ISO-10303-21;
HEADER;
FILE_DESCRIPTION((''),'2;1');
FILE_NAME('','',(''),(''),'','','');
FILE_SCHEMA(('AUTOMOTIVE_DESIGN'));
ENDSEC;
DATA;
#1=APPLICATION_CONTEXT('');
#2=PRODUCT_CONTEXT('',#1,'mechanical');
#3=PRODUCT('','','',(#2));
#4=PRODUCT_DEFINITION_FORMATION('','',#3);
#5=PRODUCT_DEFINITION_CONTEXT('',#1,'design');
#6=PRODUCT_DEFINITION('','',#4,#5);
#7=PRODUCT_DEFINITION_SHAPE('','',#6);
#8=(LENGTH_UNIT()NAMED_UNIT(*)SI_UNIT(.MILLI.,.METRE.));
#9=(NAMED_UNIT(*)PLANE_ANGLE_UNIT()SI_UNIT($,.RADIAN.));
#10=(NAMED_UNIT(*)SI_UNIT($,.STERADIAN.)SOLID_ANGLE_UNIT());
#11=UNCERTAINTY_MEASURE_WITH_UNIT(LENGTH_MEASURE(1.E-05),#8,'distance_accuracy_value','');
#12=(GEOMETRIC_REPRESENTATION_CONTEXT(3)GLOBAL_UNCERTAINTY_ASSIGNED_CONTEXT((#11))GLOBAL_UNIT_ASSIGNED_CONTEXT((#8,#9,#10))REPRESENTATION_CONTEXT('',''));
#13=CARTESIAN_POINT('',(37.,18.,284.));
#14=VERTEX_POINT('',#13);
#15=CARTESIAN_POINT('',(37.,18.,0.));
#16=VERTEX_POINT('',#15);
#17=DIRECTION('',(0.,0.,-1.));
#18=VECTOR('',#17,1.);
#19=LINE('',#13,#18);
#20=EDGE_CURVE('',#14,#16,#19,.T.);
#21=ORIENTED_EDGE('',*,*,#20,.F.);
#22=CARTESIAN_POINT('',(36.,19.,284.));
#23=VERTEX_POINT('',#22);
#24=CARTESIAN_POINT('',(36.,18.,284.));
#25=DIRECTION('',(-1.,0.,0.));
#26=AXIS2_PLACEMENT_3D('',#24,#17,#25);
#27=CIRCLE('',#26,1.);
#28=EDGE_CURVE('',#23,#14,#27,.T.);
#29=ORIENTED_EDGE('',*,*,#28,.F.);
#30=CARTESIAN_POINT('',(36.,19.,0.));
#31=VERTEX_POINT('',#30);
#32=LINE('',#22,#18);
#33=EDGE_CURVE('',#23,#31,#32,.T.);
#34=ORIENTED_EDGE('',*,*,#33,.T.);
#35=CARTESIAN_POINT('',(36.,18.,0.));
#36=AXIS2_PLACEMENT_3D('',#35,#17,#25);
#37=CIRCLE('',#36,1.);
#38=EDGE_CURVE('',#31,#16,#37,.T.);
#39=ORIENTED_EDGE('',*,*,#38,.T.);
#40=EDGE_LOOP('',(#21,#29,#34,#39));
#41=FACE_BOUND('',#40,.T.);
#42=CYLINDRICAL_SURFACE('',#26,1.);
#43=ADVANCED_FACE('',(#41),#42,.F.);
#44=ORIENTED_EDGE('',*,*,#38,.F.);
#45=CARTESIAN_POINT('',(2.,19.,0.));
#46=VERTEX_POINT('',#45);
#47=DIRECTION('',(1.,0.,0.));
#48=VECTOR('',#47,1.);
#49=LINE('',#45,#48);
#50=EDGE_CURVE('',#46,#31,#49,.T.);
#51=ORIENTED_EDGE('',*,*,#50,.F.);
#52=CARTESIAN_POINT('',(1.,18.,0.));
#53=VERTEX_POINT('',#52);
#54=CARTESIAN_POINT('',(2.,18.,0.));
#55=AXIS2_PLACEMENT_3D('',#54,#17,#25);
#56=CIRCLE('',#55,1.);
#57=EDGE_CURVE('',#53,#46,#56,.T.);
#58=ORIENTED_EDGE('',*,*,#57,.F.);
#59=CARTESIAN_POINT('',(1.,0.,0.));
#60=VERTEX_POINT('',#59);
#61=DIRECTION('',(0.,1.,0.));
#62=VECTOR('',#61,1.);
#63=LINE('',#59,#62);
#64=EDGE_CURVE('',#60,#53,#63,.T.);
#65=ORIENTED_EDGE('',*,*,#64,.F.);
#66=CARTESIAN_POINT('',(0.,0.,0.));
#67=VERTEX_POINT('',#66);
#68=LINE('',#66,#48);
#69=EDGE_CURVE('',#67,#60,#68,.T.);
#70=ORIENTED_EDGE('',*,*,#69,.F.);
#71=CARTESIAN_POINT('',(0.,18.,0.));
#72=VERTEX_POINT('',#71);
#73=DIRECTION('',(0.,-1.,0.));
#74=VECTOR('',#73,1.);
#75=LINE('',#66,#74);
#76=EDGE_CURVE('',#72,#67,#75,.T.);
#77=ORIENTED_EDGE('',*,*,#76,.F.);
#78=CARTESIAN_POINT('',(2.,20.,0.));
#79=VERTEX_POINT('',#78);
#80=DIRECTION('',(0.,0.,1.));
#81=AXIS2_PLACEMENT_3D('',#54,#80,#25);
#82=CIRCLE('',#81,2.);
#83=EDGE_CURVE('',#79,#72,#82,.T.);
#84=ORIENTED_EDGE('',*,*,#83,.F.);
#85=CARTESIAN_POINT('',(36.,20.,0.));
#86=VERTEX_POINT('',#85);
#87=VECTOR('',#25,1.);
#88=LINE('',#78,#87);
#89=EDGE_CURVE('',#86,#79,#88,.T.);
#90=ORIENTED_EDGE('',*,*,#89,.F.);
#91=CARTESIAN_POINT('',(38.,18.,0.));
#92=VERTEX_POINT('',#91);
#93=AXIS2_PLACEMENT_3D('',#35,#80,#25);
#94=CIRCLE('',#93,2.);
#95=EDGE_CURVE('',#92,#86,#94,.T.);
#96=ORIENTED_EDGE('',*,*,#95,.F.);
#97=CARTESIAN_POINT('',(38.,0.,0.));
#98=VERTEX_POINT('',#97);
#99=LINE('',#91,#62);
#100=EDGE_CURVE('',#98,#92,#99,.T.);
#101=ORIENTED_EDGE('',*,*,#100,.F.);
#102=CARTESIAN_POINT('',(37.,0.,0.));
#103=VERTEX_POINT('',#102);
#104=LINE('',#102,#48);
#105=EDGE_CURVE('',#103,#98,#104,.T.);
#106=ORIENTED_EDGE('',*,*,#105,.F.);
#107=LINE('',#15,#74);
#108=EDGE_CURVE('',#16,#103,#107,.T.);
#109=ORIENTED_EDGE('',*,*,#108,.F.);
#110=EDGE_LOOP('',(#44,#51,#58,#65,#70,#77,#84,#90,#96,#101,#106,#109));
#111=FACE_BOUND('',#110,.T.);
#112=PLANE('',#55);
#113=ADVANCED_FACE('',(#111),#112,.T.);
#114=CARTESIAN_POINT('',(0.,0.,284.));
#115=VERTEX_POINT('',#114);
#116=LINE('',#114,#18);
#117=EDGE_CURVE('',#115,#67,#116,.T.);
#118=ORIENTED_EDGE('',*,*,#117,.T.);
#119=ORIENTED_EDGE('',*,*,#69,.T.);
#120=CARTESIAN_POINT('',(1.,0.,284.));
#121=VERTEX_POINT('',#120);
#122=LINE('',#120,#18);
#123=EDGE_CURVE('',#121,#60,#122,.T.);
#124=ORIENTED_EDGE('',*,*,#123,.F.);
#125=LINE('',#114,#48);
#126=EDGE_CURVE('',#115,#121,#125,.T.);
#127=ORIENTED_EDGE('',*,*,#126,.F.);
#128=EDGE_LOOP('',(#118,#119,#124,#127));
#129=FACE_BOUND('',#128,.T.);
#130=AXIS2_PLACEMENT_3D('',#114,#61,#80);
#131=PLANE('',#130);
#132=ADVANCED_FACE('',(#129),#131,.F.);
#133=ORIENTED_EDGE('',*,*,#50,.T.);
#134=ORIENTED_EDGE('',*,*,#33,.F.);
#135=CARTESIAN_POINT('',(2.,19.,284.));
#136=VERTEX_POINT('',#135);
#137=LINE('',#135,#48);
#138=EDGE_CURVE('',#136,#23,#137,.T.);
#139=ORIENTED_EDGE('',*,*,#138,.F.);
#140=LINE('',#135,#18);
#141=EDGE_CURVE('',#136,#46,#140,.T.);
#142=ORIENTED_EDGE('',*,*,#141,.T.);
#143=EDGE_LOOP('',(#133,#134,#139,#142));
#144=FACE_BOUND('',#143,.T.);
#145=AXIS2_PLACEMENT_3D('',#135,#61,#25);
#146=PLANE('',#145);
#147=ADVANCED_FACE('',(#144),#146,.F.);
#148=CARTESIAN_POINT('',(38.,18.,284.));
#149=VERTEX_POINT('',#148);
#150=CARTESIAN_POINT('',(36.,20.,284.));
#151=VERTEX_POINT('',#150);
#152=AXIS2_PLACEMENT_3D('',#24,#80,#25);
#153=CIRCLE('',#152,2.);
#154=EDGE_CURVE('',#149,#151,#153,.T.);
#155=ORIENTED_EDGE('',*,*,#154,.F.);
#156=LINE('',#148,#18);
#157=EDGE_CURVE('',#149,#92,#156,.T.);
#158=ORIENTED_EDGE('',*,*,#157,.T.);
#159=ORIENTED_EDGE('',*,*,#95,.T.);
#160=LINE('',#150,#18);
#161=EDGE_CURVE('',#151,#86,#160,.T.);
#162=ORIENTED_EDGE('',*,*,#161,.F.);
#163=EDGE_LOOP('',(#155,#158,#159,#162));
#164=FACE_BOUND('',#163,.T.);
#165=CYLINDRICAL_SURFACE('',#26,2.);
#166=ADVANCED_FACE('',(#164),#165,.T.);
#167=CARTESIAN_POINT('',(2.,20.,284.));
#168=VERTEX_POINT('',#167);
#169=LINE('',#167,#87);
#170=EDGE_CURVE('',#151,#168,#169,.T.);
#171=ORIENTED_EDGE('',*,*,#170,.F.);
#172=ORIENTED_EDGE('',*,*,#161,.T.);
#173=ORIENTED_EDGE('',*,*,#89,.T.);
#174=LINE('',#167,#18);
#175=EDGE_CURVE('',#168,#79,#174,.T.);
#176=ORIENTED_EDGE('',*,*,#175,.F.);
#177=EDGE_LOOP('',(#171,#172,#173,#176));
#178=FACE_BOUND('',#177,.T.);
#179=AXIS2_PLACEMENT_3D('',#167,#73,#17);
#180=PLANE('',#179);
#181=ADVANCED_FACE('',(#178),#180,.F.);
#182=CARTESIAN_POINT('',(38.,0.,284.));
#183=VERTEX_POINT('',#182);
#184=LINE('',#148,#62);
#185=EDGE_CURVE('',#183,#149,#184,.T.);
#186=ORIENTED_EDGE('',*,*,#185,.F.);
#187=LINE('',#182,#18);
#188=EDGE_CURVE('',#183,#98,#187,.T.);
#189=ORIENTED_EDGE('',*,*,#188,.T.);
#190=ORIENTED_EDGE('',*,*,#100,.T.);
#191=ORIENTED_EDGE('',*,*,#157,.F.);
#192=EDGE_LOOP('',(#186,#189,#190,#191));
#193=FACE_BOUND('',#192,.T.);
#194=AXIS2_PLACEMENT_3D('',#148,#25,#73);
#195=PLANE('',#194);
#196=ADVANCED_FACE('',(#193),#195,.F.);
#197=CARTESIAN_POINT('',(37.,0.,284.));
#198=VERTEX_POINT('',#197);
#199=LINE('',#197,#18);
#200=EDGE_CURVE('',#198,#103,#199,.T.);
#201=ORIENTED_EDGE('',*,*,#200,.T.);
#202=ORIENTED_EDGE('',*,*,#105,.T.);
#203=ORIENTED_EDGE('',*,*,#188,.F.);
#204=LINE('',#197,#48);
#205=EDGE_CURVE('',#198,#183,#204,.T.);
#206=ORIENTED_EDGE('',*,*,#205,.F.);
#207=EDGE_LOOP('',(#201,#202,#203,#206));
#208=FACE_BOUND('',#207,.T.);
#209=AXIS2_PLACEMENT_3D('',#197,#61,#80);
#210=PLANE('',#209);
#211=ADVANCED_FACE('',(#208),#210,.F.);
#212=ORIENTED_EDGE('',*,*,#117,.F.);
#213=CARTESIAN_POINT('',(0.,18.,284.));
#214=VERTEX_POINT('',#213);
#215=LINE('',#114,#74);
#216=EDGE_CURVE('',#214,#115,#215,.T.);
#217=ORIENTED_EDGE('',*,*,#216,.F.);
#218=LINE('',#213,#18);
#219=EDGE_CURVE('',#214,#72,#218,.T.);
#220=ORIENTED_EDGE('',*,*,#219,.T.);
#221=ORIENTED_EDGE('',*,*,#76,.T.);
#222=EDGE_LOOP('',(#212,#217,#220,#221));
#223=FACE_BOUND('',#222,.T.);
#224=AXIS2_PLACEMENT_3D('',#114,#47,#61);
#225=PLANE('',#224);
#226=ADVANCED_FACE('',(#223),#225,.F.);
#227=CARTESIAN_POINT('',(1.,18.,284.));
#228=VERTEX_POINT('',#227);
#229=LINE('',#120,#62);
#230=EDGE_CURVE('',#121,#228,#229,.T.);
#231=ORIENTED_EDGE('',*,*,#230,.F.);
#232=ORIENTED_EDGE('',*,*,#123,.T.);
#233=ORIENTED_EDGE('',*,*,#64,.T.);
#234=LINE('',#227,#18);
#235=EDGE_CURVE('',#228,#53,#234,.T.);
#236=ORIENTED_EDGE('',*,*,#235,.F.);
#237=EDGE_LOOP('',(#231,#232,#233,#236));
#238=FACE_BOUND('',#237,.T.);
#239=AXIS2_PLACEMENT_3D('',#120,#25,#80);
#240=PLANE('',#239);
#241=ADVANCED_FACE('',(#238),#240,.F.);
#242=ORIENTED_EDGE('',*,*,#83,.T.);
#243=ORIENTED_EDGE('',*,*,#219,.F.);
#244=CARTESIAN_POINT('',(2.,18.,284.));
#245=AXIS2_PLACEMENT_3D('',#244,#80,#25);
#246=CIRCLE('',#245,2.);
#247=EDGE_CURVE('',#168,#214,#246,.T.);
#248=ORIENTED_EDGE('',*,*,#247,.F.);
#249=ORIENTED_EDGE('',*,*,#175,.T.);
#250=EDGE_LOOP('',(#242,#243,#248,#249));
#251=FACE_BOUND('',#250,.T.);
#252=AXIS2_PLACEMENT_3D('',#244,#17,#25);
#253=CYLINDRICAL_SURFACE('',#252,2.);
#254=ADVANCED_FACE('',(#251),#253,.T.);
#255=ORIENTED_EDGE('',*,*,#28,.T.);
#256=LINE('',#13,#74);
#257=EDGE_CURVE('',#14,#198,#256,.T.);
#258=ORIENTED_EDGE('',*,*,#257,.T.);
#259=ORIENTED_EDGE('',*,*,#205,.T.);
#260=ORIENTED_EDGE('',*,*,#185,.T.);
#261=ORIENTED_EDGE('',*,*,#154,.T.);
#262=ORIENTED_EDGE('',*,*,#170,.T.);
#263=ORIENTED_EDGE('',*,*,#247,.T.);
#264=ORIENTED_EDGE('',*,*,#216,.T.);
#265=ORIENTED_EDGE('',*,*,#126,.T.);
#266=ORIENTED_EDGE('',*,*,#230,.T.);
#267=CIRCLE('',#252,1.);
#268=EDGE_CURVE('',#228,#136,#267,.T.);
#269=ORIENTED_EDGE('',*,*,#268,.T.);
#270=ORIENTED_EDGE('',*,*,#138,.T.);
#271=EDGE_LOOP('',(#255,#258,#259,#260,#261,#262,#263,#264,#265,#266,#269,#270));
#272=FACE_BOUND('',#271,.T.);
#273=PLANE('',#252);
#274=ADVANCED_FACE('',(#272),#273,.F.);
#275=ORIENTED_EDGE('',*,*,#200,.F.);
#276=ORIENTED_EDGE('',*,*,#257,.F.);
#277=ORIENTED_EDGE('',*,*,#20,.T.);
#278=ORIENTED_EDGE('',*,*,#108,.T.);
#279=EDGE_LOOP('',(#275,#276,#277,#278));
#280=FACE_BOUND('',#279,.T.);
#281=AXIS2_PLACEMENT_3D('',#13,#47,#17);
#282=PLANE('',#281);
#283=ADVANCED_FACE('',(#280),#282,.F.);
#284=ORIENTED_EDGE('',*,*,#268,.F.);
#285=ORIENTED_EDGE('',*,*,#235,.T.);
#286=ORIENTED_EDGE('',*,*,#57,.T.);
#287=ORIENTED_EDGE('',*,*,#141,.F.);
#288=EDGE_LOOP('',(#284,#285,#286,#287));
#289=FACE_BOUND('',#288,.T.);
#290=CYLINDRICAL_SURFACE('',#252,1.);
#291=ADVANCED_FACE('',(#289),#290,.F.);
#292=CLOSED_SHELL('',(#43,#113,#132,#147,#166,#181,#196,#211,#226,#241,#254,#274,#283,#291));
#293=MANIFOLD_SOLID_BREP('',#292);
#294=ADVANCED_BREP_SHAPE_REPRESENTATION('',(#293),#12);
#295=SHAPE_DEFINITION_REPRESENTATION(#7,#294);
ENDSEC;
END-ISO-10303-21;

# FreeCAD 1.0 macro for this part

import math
import FreeCAD as App
import Part
import Sketcher
Q = App.Units.Quantity

doc = App.newDocument("Part")
body = doc.addObject("PartDesign::Body", "Body")

# Sketch on XY plane
sketch1 = body.newObject("Sketcher::SketchObject", "Sketch")
sketch1.AttachmentSupport = (doc.getObject("XY_Plane"), [""])
sketch1.MapMode = "FlatFace"
sketch1.addGeometry(Part.LineSegment(App.Vector(0, 18, 0), App.Vector(0, 0, 0)), False)
sketch1.addGeometry(Part.LineSegment(App.Vector(0, 0, 0), App.Vector(1, 0, 0)), False)
sketch1.addGeometry(Part.LineSegment(App.Vector(1, 0, 0), App.Vector(1, 18, 0)), False)
sketch1.addGeometry(Part.ArcOfCircle(Part.Circle(App.Vector(2, 18, 0), App.Vector(0, 0, 1), 1), math.radians(90), math.radians(180)), False)
sketch1.addGeometry(Part.LineSegment(App.Vector(2, 19, 0), App.Vector(36, 19, 0)), False)
sketch1.addGeometry(Part.ArcOfCircle(Part.Circle(App.Vector(36, 18, 0), App.Vector(0, 0, 1), 1), math.radians(0), math.radians(90)), False)
sketch1.addGeometry(Part.LineSegment(App.Vector(37, 18, 0), App.Vector(37, 0, 0)), False)
sketch1.addGeometry(Part.LineSegment(App.Vector(37, 0, 0), App.Vector(38, 0, 0)), False)
sketch1.addGeometry(Part.LineSegment(App.Vector(38, 0, 0), App.Vector(38, 18, 0)), False)
sketch1.addGeometry(Part.ArcOfCircle(Part.Circle(App.Vector(36, 18, 0), App.Vector(0, 0, 1), 2), math.radians(0), math.radians(90)), False)
sketch1.addGeometry(Part.LineSegment(App.Vector(36, 20, 0), App.Vector(2, 20, 0)), False)
sketch1.addGeometry(Part.ArcOfCircle(Part.Circle(App.Vector(2, 18, 0), App.Vector(0, 0, 1), 2), math.radians(90), math.radians(180)), False)
sketch1.addConstraint(Sketcher.Constraint("Coincident", 0, 2, 1, 1))
sketch1.addConstraint(Sketcher.Constraint("Coincident", 1, 2, 2, 1))
sketch1.addConstraint(Sketcher.Constraint("Tangent", 2, 2, 3, 2))
sketch1.addConstraint(Sketcher.Constraint("Tangent", 3, 1, 4, 1))
sketch1.addConstraint(Sketcher.Constraint("Tangent", 4, 2, 5, 2))
sketch1.addConstraint(Sketcher.Constraint("Tangent", 5, 1, 6, 1))
sketch1.addConstraint(Sketcher.Constraint("Coincident", 6, 2, 7, 1))
sketch1.addConstraint(Sketcher.Constraint("Coincident", 7, 2, 8, 1))
sketch1.addConstraint(Sketcher.Constraint("Tangent", 8, 2, 9, 1))
sketch1.addConstraint(Sketcher.Constraint("Tangent", 9, 2, 10, 1))
sketch1.addConstraint(Sketcher.Constraint("Tangent", 10, 2, 11, 1))
sketch1.addConstraint(Sketcher.Constraint("Tangent", 11, 2, 0, 1))
sketch1.addConstraint(Sketcher.Constraint("Vertical", 0))
sketch1.addConstraint(Sketcher.Constraint("Horizontal", 1))
sketch1.addConstraint(Sketcher.Constraint("Vertical", 2))
sketch1.addConstraint(Sketcher.Constraint("Horizontal", 4))
sketch1.addConstraint(Sketcher.Constraint("Vertical", 6))
sketch1.addConstraint(Sketcher.Constraint("Horizontal", 7))
sketch1.addConstraint(Sketcher.Constraint("Vertical", 8))
sketch1.addConstraint(Sketcher.Constraint("Horizontal", 10))
sketch1.addConstraint(Sketcher.Constraint("Coincident", 0, 2, -1, 1))
sketch1.addConstraint(Sketcher.Constraint("Coincident", 9, 3, 5, 3))
sketch1.addConstraint(Sketcher.Constraint("Coincident", 11, 3, 3, 3))
sketch1.addConstraint(Sketcher.Constraint("Equal", 3, 5))
sketch1.addConstraint(Sketcher.Constraint("PointOnObject", 6, 2, -1))
sketch1.addConstraint(Sketcher.Constraint("Radius", 3, Q("1 mm")))
sketch1.addConstraint(Sketcher.Constraint("Radius", 9, Q("2 mm")))
sketch1.addConstraint(Sketcher.Constraint("DistanceX", 4, 1, 4, 2, Q("34 mm")))
sketch1.addConstraint(Sketcher.Constraint("DistanceY", 0, 2, 0, 1, Q("18 mm")))
pad1 = body.newObject("PartDesign::Pad", "Pad")
pad1.Profile = sketch1
pad1.Length = 284

doc.recompute()
